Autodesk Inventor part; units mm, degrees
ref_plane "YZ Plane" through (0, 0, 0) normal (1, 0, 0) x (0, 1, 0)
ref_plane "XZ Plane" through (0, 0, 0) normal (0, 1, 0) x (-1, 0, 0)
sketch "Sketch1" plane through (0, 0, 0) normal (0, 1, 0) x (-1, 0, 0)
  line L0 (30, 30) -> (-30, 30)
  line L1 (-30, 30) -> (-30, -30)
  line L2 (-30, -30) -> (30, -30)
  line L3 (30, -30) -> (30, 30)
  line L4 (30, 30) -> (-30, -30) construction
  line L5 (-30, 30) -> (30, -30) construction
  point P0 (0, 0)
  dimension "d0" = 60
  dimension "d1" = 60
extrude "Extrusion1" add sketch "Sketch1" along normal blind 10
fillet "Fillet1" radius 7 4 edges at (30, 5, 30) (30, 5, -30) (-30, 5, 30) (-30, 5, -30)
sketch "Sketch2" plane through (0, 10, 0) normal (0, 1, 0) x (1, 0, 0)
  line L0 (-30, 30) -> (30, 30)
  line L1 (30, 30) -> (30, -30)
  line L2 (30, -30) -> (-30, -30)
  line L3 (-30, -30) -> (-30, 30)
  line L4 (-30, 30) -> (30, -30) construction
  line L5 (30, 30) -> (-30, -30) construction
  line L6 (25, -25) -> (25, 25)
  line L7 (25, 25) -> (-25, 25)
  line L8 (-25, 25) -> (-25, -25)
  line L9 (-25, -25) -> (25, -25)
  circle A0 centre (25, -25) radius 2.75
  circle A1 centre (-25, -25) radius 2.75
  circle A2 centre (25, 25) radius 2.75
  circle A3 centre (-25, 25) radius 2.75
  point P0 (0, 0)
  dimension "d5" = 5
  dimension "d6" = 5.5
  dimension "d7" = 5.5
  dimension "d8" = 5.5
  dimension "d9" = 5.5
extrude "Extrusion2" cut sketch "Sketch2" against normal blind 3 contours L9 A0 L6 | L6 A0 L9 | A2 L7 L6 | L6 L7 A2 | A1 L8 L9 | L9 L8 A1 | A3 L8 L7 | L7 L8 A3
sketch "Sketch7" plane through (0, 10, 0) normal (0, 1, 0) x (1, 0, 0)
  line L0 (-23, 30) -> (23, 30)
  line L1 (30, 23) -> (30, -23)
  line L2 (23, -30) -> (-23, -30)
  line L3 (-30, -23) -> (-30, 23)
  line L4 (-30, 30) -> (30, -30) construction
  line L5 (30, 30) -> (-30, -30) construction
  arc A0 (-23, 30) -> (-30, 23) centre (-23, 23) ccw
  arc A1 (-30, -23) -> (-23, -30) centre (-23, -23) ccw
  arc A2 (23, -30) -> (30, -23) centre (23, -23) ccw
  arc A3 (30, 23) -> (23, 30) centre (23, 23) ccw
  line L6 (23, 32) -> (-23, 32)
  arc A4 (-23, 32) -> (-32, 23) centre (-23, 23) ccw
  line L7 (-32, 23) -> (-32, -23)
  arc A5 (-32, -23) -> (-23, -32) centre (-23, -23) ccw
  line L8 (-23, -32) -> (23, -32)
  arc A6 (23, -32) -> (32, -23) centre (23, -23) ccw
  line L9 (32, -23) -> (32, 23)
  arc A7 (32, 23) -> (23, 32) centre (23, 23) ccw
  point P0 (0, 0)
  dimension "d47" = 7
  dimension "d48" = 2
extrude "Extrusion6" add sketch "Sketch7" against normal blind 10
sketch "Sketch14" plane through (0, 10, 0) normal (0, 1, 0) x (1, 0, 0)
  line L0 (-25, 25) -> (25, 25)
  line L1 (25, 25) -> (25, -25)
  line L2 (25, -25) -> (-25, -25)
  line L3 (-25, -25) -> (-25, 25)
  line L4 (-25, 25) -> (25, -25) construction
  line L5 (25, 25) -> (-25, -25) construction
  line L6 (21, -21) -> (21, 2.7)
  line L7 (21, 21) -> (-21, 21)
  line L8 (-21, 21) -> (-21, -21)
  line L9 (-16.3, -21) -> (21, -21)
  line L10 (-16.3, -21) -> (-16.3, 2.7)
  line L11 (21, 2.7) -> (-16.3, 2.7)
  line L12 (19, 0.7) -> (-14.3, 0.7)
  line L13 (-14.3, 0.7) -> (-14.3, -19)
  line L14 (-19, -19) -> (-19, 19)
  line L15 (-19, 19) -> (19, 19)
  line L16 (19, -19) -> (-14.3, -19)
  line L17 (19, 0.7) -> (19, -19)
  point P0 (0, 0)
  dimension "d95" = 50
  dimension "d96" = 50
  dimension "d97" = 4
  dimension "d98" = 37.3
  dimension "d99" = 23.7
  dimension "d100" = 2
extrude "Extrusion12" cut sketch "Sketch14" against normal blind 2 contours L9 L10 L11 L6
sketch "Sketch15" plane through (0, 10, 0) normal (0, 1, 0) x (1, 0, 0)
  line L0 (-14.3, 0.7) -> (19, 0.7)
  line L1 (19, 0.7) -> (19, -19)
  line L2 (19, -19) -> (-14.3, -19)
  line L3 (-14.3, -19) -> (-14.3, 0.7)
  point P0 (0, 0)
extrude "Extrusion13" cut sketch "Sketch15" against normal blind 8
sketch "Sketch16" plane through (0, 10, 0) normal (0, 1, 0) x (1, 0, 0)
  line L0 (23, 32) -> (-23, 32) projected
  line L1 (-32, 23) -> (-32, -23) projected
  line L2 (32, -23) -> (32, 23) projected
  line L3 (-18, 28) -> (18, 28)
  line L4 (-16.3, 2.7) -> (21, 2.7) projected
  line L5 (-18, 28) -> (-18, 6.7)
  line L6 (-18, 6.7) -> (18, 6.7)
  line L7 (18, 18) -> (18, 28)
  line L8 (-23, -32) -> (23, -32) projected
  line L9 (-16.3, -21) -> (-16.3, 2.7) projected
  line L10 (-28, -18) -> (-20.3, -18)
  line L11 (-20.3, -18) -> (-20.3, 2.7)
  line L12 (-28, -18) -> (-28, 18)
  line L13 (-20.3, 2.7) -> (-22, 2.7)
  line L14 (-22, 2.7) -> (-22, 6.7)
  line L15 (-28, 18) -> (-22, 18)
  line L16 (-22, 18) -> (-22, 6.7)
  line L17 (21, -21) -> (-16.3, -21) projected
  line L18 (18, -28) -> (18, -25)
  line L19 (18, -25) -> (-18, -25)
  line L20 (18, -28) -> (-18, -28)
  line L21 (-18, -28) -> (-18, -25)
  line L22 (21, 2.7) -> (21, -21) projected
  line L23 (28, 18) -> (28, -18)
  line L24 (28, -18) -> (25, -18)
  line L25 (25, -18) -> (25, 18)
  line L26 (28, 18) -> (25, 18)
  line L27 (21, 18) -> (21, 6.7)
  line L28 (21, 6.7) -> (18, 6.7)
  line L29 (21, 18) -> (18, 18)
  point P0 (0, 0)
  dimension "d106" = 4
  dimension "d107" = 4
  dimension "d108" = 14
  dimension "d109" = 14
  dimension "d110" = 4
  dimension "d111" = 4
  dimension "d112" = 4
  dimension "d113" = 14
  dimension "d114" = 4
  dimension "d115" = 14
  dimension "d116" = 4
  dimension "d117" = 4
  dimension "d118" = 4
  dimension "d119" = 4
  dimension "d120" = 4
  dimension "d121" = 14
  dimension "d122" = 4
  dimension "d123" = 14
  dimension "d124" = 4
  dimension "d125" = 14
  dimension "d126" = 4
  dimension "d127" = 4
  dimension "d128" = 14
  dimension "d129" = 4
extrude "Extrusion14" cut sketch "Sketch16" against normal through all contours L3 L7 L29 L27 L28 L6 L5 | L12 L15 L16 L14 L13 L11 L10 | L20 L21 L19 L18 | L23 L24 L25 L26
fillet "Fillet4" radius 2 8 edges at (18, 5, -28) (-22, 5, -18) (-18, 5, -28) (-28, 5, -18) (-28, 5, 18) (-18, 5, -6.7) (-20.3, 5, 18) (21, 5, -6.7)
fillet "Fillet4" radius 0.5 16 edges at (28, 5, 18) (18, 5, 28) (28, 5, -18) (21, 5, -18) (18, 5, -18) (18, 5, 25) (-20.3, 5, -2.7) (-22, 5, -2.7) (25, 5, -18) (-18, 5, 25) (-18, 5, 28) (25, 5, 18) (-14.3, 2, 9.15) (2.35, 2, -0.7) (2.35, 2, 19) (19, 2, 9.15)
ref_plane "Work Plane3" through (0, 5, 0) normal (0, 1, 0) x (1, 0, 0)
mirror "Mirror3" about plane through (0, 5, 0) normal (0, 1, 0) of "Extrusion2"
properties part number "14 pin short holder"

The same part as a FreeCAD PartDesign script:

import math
import FreeCAD as App
import Part
import Sketcher
from FreeCAD import Vector


def edges_at(feature, points):
    """Names of the edges that pass closest to the given points."""
    edges = feature.Shape.Edges
    near = lambda p: min(range(len(edges)), key=lambda i: edges[i].distToShape(Part.Vertex(*p))[0])
    return sorted({f"Edge{near(p) + 1}" for p in points})


def add_polygon(sketch, points):
    """Adds a closed chain of lines whose ends are joined by coincident constraints."""
    first, n = sketch.GeometryCount, len(points)
    for a, b in zip(points, points[1:] + points[:1]):
        sketch.addGeometry(Part.LineSegment(App.Vector(*a, 0), App.Vector(*b, 0)), False)
    for i in range(n):
        sketch.addConstraint(Sketcher.Constraint("Coincident", first + i, 2, first + (i + 1) % n, 1))

doc = App.newDocument("Part")
body = doc.addObject("PartDesign::Body", "Body")

# Sketch on XZ plane
sketch1 = doc.addObject("Sketcher::SketchObject", "Sketch")
body.addObject(sketch1)
sketch1.AttachmentSupport = (doc.XZ_Plane, [""])
sketch1.MapMode = "FlatFace"
add_polygon(sketch1, [(-30, -30), (-30, 30), (30, 30), (30, -30)])  # lines 0-3
sketch1.addConstraint([
    Sketcher.Constraint("Vertical", 0),
    Sketcher.Constraint("Horizontal", 1),
    Sketcher.Constraint("Vertical", 2),
    Sketcher.Constraint("Horizontal", 3),
    Sketcher.Constraint("Symmetric", 0, 2, 2, 2, -1, 1),
    Sketcher.Constraint("Equal", 3, 0),
    Sketcher.Constraint("DistanceX", 1, 1, 1, 2, 60.0),
])
pad1 = doc.addObject("PartDesign::Pad", "Pad")
body.addObject(pad1)
pad1.Profile = sketch1
pad1.Length = 10
pad1.Reversed = True
doc.recompute()

fillet = doc.addObject("PartDesign::Fillet", "Fillet")
body.addObject(fillet)
fillet.Base = (pad1, edges_at(pad1, [
    (30, 5, 30),
    (30, 5, -30),
    (-30, 5, 30),
    (-30, 5, -30),
]))
fillet.Radius = 7

# Sketch on XZ plane
sketch2 = doc.addObject("Sketcher::SketchObject", "Sketch001")
body.addObject(sketch2)
sketch2.AttachmentSupport = (doc.XZ_Plane, [""])
sketch2.MapMode = "FlatFace"
sketch2.AttachmentOffset = App.Placement(Vector(0, 0, -10), App.Rotation())
sketch2.addGeometry([
    Part.Circle(Vector(25, 25, 0), Vector(0, 0, 1), 2.75),
    Part.Circle(Vector(25, -25, 0), Vector(0, 0, 1), 2.75),
    Part.Circle(Vector(-25, 25, 0), Vector(0, 0, 1), 2.75),
    Part.Circle(Vector(-25, -25, 0), Vector(0, 0, 1), 2.75),
], False)
sketch2.addConstraint([
    Sketcher.Constraint("Equal", 0, 1),
    Sketcher.Constraint("Equal", 1, 2),
    Sketcher.Constraint("Equal", 2, 3),
    Sketcher.Constraint("Symmetric", 1, 3, 2, 3, -1, 1),
    Sketcher.Constraint("Symmetric", 0, 3, 3, 3, -1, 1),
    Sketcher.Constraint("Symmetric", 0, 3, 2, 3, -2),
    Sketcher.Constraint("Diameter", 0, 5.5),
    Sketcher.Constraint("DistanceX", -1, 1, 0, 3, 25.0),
    Sketcher.Constraint("DistanceY", -1, 1, 0, 3, 25.0),
])
pocket1 = doc.addObject("PartDesign::Pocket", "Pocket")
body.addObject(pocket1)
pocket1.Profile = sketch2
pocket1.Length = 3
pocket1.Reversed = True

# Sketch on XZ plane
sketch3 = doc.addObject("Sketcher::SketchObject", "Sketch002")
body.addObject(sketch3)
sketch3.AttachmentSupport = (doc.XZ_Plane, [""])
sketch3.MapMode = "FlatFace"
sketch3.AttachmentOffset = App.Placement(Vector(0, 0, -10), App.Rotation())
sketch3.addGeometry([
    Part.ArcOfCircle(Part.Circle(Vector(23, -23, 0), Vector(0, 0, 1), 9), math.radians(-90), math.radians(0)),  # 0
    Part.LineSegment(Vector(23, -32, 0), Vector(-23, -32, 0)),  # 1
    Part.ArcOfCircle(Part.Circle(Vector(-23, -23, 0), Vector(0, 0, 1), 9), math.radians(180), math.radians(270)),  # 2
    Part.LineSegment(Vector(-32, -23, 0), Vector(-32, 23, 0)),  # 3
    Part.ArcOfCircle(Part.Circle(Vector(-23, 23, 0), Vector(0, 0, 1), 9), math.radians(90), math.radians(180)),  # 4
    Part.LineSegment(Vector(-23, 32, 0), Vector(23, 32, 0)),  # 5
    Part.ArcOfCircle(Part.Circle(Vector(23, 23, 0), Vector(0, 0, 1), 9), math.radians(0), math.radians(90)),  # 6
    Part.LineSegment(Vector(32, 23, 0), Vector(32, -23, 0)),  # 7
    Part.ArcOfCircle(Part.Circle(Vector(-23, -23, 0), Vector(0, 0, 1), 7), math.radians(180), math.radians(270)),  # 8
    Part.LineSegment(Vector(-23, -30, 0), Vector(23, -30, 0)),  # 9
    Part.ArcOfCircle(Part.Circle(Vector(23, -23, 0), Vector(0, 0, 1), 7), math.radians(-90), math.radians(0)),  # 10
    Part.LineSegment(Vector(30, -23, 0), Vector(30, 23, 0)),  # 11
    Part.ArcOfCircle(Part.Circle(Vector(23, 23, 0), Vector(0, 0, 1), 7), math.radians(0), math.radians(90)),  # 12
    Part.LineSegment(Vector(23, 30, 0), Vector(-23, 30, 0)),  # 13
    Part.ArcOfCircle(Part.Circle(Vector(-23, 23, 0), Vector(0, 0, 1), 7), math.radians(90), math.radians(180)),  # 14
    Part.LineSegment(Vector(-30, 23, 0), Vector(-30, -23, 0)),  # 15
], False)
sketch3.addConstraint([
    Sketcher.Constraint("Tangent", 0, 1, 1, 1),
    Sketcher.Constraint("Tangent", 1, 2, 2, 2),
    Sketcher.Constraint("Tangent", 2, 1, 3, 1),
    Sketcher.Constraint("Tangent", 3, 2, 4, 2),
    Sketcher.Constraint("Tangent", 4, 1, 5, 1),
    Sketcher.Constraint("Tangent", 5, 2, 6, 2),
    Sketcher.Constraint("Tangent", 6, 1, 7, 1),
    Sketcher.Constraint("Tangent", 7, 2, 0, 2),
    Sketcher.Constraint("Tangent", 8, 2, 9, 1),
    Sketcher.Constraint("Tangent", 9, 2, 10, 1),
    Sketcher.Constraint("Tangent", 10, 2, 11, 1),
    Sketcher.Constraint("Tangent", 11, 2, 12, 1),
    Sketcher.Constraint("Tangent", 12, 2, 13, 1),
    Sketcher.Constraint("Tangent", 13, 2, 14, 1),
    Sketcher.Constraint("Tangent", 14, 2, 15, 1),
    Sketcher.Constraint("Tangent", 15, 2, 8, 1),
    Sketcher.Constraint("Horizontal", 1),
    Sketcher.Constraint("Vertical", 3),
    Sketcher.Constraint("Horizontal", 5),
    Sketcher.Constraint("Vertical", 7),
    Sketcher.Constraint("Horizontal", 9),
    Sketcher.Constraint("Vertical", 11),
    Sketcher.Constraint("Horizontal", 13),
    Sketcher.Constraint("Vertical", 15),
    Sketcher.Constraint("Coincident", 8, 3, 2, 3),
    Sketcher.Constraint("Coincident", 10, 3, 0, 3),
    Sketcher.Constraint("Coincident", 12, 3, 6, 3),
    Sketcher.Constraint("Equal", 0, 2),
    Sketcher.Constraint("Equal", 2, 4),
    Sketcher.Constraint("Equal", 4, 6),
    Sketcher.Constraint("Equal", 12, 14),
    Sketcher.Constraint("Symmetric", 0, 3, 4, 3, -1, 1),
    Sketcher.Constraint("Equal", 13, 3),
    Sketcher.Constraint("Radius", 8, 7.0),
    Sketcher.Constraint("Radius", 0, 9.0),
    Sketcher.Constraint("DistanceX", 1, 2, 1, 1, 46.0),
])
pad2 = doc.addObject("PartDesign::Pad", "Pad001")
body.addObject(pad2)
pad2.Profile = sketch3
pad2.Length = 10

# Sketch on XZ plane
sketch4 = doc.addObject("Sketcher::SketchObject", "Sketch003")
body.addObject(sketch4)
sketch4.AttachmentSupport = (doc.XZ_Plane, [""])
sketch4.MapMode = "FlatFace"
sketch4.AttachmentOffset = App.Placement(Vector(0, 0, -10), App.Rotation())
add_polygon(sketch4, [(-16.3, 21), (21, 21), (21, -2.7), (-16.3, -2.7)])  # lines 0-3
add_polygon(sketch4, [(-14.3, -0.7), (19, -0.7), (19, 19), (-14.3, 19)])  # lines 4-7
sketch4.addConstraint([
    Sketcher.Constraint("Horizontal", 0),
    Sketcher.Constraint("Vertical", 1),
    Sketcher.Constraint("Horizontal", 2),
    Sketcher.Constraint("Vertical", 3),
    Sketcher.Constraint("Horizontal", 4),
    Sketcher.Constraint("Vertical", 5),
    Sketcher.Constraint("Horizontal", 6),
    Sketcher.Constraint("Vertical", 7),
    Sketcher.Constraint("DistanceX", 0, 1, 0, 2, 37.3),
    Sketcher.Constraint("DistanceY", 1, 2, 1, 1, 23.7),
    Sketcher.Constraint("DistanceX", 4, 2, 1, 2, 2.0),
    Sketcher.Constraint("DistanceY", 1, 2, 4, 2, 2.0),
    Sketcher.Constraint("DistanceY", 5, 2, 0, 2, 2.0),
    Sketcher.Constraint("DistanceX", 3, 2, 6, 2, 2.0),
    Sketcher.Constraint("DistanceX", -1, 1, 0, 2, 21.0),
    Sketcher.Constraint("DistanceY", -1, 1, 0, 2, 21.0),
])
pocket2 = doc.addObject("PartDesign::Pocket", "Pocket001")
body.addObject(pocket2)
pocket2.Profile = sketch4
pocket2.Length = 2
pocket2.Reversed = True

# Sketch on XZ plane
sketch5 = doc.addObject("Sketcher::SketchObject", "Sketch004")
body.addObject(sketch5)
sketch5.AttachmentSupport = (doc.XZ_Plane, [""])
sketch5.MapMode = "FlatFace"
sketch5.AttachmentOffset = App.Placement(Vector(0, 0, -10), App.Rotation())
add_polygon(sketch5, [(19, -0.7), (-14.3, -0.7), (-14.3, 19), (19, 19)])  # lines 0-3
sketch5.addConstraint([
    Sketcher.Constraint("Horizontal", 0),
    Sketcher.Constraint("Vertical", 1),
    Sketcher.Constraint("Horizontal", 2),
    Sketcher.Constraint("Vertical", 3),
    Sketcher.Constraint("DistanceX", 0, 2, 0, 1, 33.3),
    Sketcher.Constraint("DistanceY", 1, 1, 1, 2, 19.7),
    Sketcher.Constraint("DistanceY", -1, 1, 1, 2, 19.0),
    Sketcher.Constraint("DistanceX", -1, 1, 2, 2, 19.0),
])
pocket3 = doc.addObject("PartDesign::Pocket", "Pocket002")
body.addObject(pocket3)
pocket3.Profile = sketch5
pocket3.Length = 8
pocket3.Reversed = True

# Sketch on XZ plane
sketch6 = doc.addObject("Sketcher::SketchObject", "Sketch005")
body.addObject(sketch6)
sketch6.AttachmentSupport = (doc.XZ_Plane, [""])
sketch6.MapMode = "FlatFace"
sketch6.AttachmentOffset = App.Placement(Vector(0, 0, -10), App.Rotation())
add_polygon(sketch6, [(18, -28), (-18, -28), (-18, -6.7), (21, -6.7), (21, -18), (18, -18)])  # lines 0-5
add_polygon(sketch6, [(-28, -18), (-28, 18), (-20.3, 18), (-20.3, -2.7), (-22, -2.7), (-22, -18)])  # lines 6-11
add_polygon(sketch6, [(-18, 28), (18, 28), (18, 25), (-18, 25)])  # lines 12-15
add_polygon(sketch6, [(28, 18), (28, -18), (25, -18), (25, 18)])  # lines 16-19
sketch6.addConstraint([
    Sketcher.Constraint("Horizontal", 0),
    Sketcher.Constraint("Vertical", 1),
    Sketcher.Constraint("Horizontal", 2),
    Sketcher.Constraint("Vertical", 3),
    Sketcher.Constraint("Horizontal", 4),
    Sketcher.Constraint("Vertical", 5),
    Sketcher.Constraint("Vertical", 6),
    Sketcher.Constraint("Horizontal", 7),
    Sketcher.Constraint("Vertical", 8),
    Sketcher.Constraint("Horizontal", 9),
    Sketcher.Constraint("Vertical", 10),
    Sketcher.Constraint("Horizontal", 11),
    Sketcher.Constraint("Horizontal", 12),
    Sketcher.Constraint("Vertical", 13),
    Sketcher.Constraint("Horizontal", 14),
    Sketcher.Constraint("Vertical", 15),
    Sketcher.Constraint("Vertical", 16),
    Sketcher.Constraint("Horizontal", 17),
    Sketcher.Constraint("Vertical", 18),
    Sketcher.Constraint("Horizontal", 19),
    Sketcher.Constraint("Symmetric", 0, 2, 12, 2, -1, 1),
    Sketcher.Constraint("Symmetric", 6, 2, 16, 2, -1, 1),
    Sketcher.Constraint("Horizontal", 4, 2, 10, 2),
    Sketcher.Constraint("Horizontal", 11, 2, 16, 2),
    Sketcher.Constraint("Horizontal", 7, 2, 18, 2),
    Sketcher.Constraint("Vertical", 5, 2, 12, 2),
    Sketcher.Constraint("Vertical", 1, 2, 14, 2),
    Sketcher.Constraint("Equal", 4, 17),
    Sketcher.Constraint("Equal", 14, 6),
    Sketcher.Constraint("Equal", 19, 13),
    Sketcher.Constraint("DistanceY", 1, 2, 8, 2, 4.0),
    Sketcher.Constraint("DistanceX", 9, 2, 1, 2, 4.0),
    Sketcher.Constraint("DistanceX", 3, 2, 17, 2, 4.0),
    Sketcher.Constraint("DistanceX", 0, 2, 0, 1, 36.0),
    Sketcher.Constraint("DistanceX", 2, 1, 2, 2, 39.0),
    Sketcher.Constraint("DistanceY", 5, 2, 5, 1, 10.0),
    Sketcher.Constraint("DistanceX", 7, 1, 7, 2, 7.7),
    Sketcher.Constraint("DistanceY", 1, 1, 1, 2, 21.3),
])
pocket4 = doc.addObject("PartDesign::Pocket", "Pocket003")
body.addObject(pocket4)
pocket4.Profile = sketch6
pocket4.Type = "ThroughAll"
pocket4.Reversed = True
doc.recompute()

fillet2 = doc.addObject("PartDesign::Fillet", "Fillet001")
body.addObject(fillet2)
fillet2.Base = (pocket4, edges_at(pocket4, [
    (18, 5, -28),
    (-22, 5, -18),
    (-18, 5, -28),
    (-28, 5, -18),
    (-28, 5, 18),
    (-18, 5, -6.7),
    (-20.3, 5, 18),
    (21, 5, -6.7),
]))
fillet2.Radius = 2
doc.recompute()

fillet3 = doc.addObject("PartDesign::Fillet", "Fillet002")
body.addObject(fillet3)
fillet3.Base = (fillet2, edges_at(fillet2, [
    (28, 5, 18),
    (18, 5, 28),
    (28, 5, -18),
    (21, 5, -18),
    (18, 5, -18),
    (18, 5, 25),
    (-20.3, 5, -2.7),
    (-22, 5, -2.7),
    (25, 5, -18),
    (-18, 5, 25),
    (-18, 5, 28),
    (25, 5, 18),
    (-14.3, 2, 9.15),
    (2.35, 2, -0.7),
    (2.35, 2, 19),
    (19, 2, 9.15),
]))
fillet3.Radius = 0.5
doc.recompute()

datumplane = doc.addObject("PartDesign::Plane", "DatumPlane")
body.addObject(datumplane)
datumplane.AttachmentSupport = (doc.XZ_Plane, [""])
datumplane.MapMode = "FlatFace"
datumplane.AttachmentOffset = App.Placement(Vector(0, 0, -5), App.Rotation())
mirrored = doc.addObject("PartDesign::Mirrored", "Mirrored")
body.addObject(mirrored)
mirrored.Originals = [pocket1]
mirrored.MirrorPlane = (datumplane, [""])
body.Tip = mirrored

doc.recompute()
